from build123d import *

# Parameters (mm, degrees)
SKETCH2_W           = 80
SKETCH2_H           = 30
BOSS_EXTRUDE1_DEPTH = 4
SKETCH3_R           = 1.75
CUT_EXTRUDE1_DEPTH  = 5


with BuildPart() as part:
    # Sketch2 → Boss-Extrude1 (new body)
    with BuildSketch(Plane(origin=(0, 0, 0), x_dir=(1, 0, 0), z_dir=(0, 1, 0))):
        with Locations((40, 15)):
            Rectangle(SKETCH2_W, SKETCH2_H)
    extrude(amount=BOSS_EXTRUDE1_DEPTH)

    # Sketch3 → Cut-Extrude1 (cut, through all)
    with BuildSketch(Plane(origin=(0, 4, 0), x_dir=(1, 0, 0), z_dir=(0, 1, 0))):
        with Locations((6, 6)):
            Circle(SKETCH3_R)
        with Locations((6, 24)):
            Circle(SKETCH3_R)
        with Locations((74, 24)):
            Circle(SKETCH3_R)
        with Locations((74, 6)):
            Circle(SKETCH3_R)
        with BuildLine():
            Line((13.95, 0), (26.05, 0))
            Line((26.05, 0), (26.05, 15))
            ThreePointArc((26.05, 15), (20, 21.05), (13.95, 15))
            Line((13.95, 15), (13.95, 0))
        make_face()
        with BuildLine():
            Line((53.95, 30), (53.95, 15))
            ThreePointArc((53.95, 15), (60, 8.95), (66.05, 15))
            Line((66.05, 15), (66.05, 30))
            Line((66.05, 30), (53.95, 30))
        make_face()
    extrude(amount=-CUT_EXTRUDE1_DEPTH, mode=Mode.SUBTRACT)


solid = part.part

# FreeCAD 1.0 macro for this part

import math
import FreeCAD as App
import Part
import Sketcher
Q = App.Units.Quantity

doc = App.newDocument("Part")
params = doc.addObject("Spreadsheet::Sheet", "Params")
for row, (alias, value) in enumerate([
    ("sketch1_width", "80 mm"),
    ("sketch1_height", "30 mm"),
    ("pad1_length", "4 mm"),
    ("sketch2_diameter", "3.5 mm"),
    ("sketch2_height", "15 mm"),
    ("sketch2_radius", "6.05 mm"),
], start=1):
    params.set(f"A{row}", alias)
    params.set(f"B{row}", "=" + value)
    params.setAlias(f"B{row}", alias)

body = doc.addObject("PartDesign::Body", "Body")

# Sketch on XZ plane
sketch1 = body.newObject("Sketcher::SketchObject", "Sketch")
sketch1.AttachmentSupport = (doc.getObject("XZ_Plane"), [""])
sketch1.MapMode = "FlatFace"
sketch1.addGeometry([
    Part.LineSegment(App.Vector(0, -30, 0), App.Vector(0, 0, 0)),
    Part.LineSegment(App.Vector(0, 0, 0), App.Vector(80, 0, 0)),
    Part.LineSegment(App.Vector(80, 0, 0), App.Vector(80, -30, 0)),
    Part.LineSegment(App.Vector(80, -30, 0), App.Vector(0, -30, 0)),
], False)
sketch1.addConstraint([
    Sketcher.Constraint("Coincident", 0, 2, 1, 1),
    Sketcher.Constraint("Coincident", 1, 2, 2, 1),
    Sketcher.Constraint("Coincident", 2, 2, 3, 1),
    Sketcher.Constraint("Coincident", 3, 2, 0, 1),
    Sketcher.Constraint("Vertical", 0),
    Sketcher.Constraint("Horizontal", 1),
    Sketcher.Constraint("Vertical", 2),
    Sketcher.Constraint("Horizontal", 3),
    Sketcher.Constraint("Coincident", 0, 2, -1, 1),
    Sketcher.Constraint("DistanceX", 1, 1, 1, 2, Q("80 mm")),
    Sketcher.Constraint("DistanceY", 0, 1, 0, 2, Q("30 mm")),
])
sketch1.setExpression("Constraints[9]", "Params.sketch1_width")
sketch1.setExpression("Constraints[10]", "Params.sketch1_height")
pad1 = body.newObject("PartDesign::Pad", "Pad")
pad1.Profile = sketch1
pad1.setExpression("Length", "Params.pad1_length")
pad1.Reversed = True

# Sketch on XZ plane
sketch2 = body.newObject("Sketcher::SketchObject", "Sketch001")
sketch2.AttachmentSupport = (doc.getObject("XZ_Plane"), [""])
sketch2.MapMode = "FlatFace"
sketch2.AttachmentOffset = App.Placement(App.Vector(0, 0, -4), App.Rotation())
sketch2.addGeometry([
    Part.Circle(App.Vector(6, -6, 0), App.Vector(0, 0, 1), 1.8),  # 0
    Part.Circle(App.Vector(6, -24, 0), App.Vector(0, 0, 1), 1.8),  # 1
    Part.Circle(App.Vector(74, -24, 0), App.Vector(0, 0, 1), 1.8),  # 2
    Part.Circle(App.Vector(74, -6, 0), App.Vector(0, 0, 1), 1.8),  # 3
    Part.LineSegment(App.Vector(13.9, 0, 0), App.Vector(26.1, 0, 0)),  # 4
    Part.LineSegment(App.Vector(26.1, 0, 0), App.Vector(26.1, -15, 0)),  # 5
    Part.ArcOfCircle(Part.Circle(App.Vector(20, -15, 0), App.Vector(0, 0, 1), 6), math.radians(180), math.radians(360)),  # 6
    Part.LineSegment(App.Vector(13.9, -15, 0), App.Vector(13.9, 0, 0)),  # 7
    Part.LineSegment(App.Vector(54, -30, 0), App.Vector(54, -15, 0)),  # 8
    Part.ArcOfCircle(Part.Circle(App.Vector(60, -15, 0), App.Vector(0, 0, 1), 6), math.radians(0), math.radians(180)),  # 9
    Part.LineSegment(App.Vector(66, -15, 0), App.Vector(66, -30, 0)),  # 10
    Part.LineSegment(App.Vector(66, -30, 0), App.Vector(54, -30, 0)),  # 11
], False)
sketch2.addConstraint([
    Sketcher.Constraint("Coincident", 4, 2, 5, 1),
    Sketcher.Constraint("Tangent", 5, 2, 6, 2),
    Sketcher.Constraint("Tangent", 6, 1, 7, 1),
    Sketcher.Constraint("Coincident", 7, 2, 4, 1),
    Sketcher.Constraint("Tangent", 8, 2, 9, 2),
    Sketcher.Constraint("Tangent", 9, 1, 10, 1),
    Sketcher.Constraint("Coincident", 10, 2, 11, 1),
    Sketcher.Constraint("Coincident", 11, 2, 8, 1),
    Sketcher.Constraint("Horizontal", 4),
    Sketcher.Constraint("Vertical", 5),
    Sketcher.Constraint("Vertical", 7),
    Sketcher.Constraint("Vertical", 8),
    Sketcher.Constraint("Vertical", 10),
    Sketcher.Constraint("Horizontal", 11),
    Sketcher.Constraint("Equal", 0, 1),
    Sketcher.Constraint("Equal", 1, 2),
    Sketcher.Constraint("Equal", 2, 3),
    Sketcher.Constraint("Equal", 6, 9),
    Sketcher.Constraint("PointOnObject", 4, 2, -1),
    Sketcher.Constraint("Horizontal", 1, 3, 2, 3),
    Sketcher.Constraint("Horizontal", 0, 3, 3, 3),
    Sketcher.Constraint("Horizontal", 6, 3, 9, 3),
    Sketcher.Constraint("Vertical", 0, 3, 1, 3),
    Sketcher.Constraint("Vertical", 2, 3, 3, 3),
    Sketcher.Constraint("Equal", 7, 8),
    Sketcher.Constraint("Diameter", 0, Q("3.5 mm")),
    Sketcher.Constraint("DistanceY", 5, 2, 5, 1, Q("15 mm")),
    Sketcher.Constraint("Radius", 6, Q("6.05 mm")),
    Sketcher.Constraint("DistanceX", -1, 1, 0, 3, Q("6 mm")),
    Sketcher.Constraint("DistanceY", 0, 3, -1, 1, Q("6 mm")),
    Sketcher.Constraint("DistanceY", 1, 3, -1, 1, Q("24 mm")),
    Sketcher.Constraint("DistanceX", -1, 1, 2, 3, Q("74 mm")),
    Sketcher.Constraint("DistanceX", -1, 1, 6, 3, Q("20 mm")),
    Sketcher.Constraint("DistanceX", -1, 1, 9, 3, Q("60 mm")),
])
sketch2.setExpression("Constraints[25]", "Params.sketch2_diameter")
sketch2.setExpression("Constraints[26]", "Params.sketch2_height")
sketch2.setExpression("Constraints[27]", "Params.sketch2_radius")
pocket1 = body.newObject("PartDesign::Pocket", "Pocket")
pocket1.Profile = sketch2
pocket1.Type = "ThroughAll"
pocket1.Reversed = True

doc.recompute()
